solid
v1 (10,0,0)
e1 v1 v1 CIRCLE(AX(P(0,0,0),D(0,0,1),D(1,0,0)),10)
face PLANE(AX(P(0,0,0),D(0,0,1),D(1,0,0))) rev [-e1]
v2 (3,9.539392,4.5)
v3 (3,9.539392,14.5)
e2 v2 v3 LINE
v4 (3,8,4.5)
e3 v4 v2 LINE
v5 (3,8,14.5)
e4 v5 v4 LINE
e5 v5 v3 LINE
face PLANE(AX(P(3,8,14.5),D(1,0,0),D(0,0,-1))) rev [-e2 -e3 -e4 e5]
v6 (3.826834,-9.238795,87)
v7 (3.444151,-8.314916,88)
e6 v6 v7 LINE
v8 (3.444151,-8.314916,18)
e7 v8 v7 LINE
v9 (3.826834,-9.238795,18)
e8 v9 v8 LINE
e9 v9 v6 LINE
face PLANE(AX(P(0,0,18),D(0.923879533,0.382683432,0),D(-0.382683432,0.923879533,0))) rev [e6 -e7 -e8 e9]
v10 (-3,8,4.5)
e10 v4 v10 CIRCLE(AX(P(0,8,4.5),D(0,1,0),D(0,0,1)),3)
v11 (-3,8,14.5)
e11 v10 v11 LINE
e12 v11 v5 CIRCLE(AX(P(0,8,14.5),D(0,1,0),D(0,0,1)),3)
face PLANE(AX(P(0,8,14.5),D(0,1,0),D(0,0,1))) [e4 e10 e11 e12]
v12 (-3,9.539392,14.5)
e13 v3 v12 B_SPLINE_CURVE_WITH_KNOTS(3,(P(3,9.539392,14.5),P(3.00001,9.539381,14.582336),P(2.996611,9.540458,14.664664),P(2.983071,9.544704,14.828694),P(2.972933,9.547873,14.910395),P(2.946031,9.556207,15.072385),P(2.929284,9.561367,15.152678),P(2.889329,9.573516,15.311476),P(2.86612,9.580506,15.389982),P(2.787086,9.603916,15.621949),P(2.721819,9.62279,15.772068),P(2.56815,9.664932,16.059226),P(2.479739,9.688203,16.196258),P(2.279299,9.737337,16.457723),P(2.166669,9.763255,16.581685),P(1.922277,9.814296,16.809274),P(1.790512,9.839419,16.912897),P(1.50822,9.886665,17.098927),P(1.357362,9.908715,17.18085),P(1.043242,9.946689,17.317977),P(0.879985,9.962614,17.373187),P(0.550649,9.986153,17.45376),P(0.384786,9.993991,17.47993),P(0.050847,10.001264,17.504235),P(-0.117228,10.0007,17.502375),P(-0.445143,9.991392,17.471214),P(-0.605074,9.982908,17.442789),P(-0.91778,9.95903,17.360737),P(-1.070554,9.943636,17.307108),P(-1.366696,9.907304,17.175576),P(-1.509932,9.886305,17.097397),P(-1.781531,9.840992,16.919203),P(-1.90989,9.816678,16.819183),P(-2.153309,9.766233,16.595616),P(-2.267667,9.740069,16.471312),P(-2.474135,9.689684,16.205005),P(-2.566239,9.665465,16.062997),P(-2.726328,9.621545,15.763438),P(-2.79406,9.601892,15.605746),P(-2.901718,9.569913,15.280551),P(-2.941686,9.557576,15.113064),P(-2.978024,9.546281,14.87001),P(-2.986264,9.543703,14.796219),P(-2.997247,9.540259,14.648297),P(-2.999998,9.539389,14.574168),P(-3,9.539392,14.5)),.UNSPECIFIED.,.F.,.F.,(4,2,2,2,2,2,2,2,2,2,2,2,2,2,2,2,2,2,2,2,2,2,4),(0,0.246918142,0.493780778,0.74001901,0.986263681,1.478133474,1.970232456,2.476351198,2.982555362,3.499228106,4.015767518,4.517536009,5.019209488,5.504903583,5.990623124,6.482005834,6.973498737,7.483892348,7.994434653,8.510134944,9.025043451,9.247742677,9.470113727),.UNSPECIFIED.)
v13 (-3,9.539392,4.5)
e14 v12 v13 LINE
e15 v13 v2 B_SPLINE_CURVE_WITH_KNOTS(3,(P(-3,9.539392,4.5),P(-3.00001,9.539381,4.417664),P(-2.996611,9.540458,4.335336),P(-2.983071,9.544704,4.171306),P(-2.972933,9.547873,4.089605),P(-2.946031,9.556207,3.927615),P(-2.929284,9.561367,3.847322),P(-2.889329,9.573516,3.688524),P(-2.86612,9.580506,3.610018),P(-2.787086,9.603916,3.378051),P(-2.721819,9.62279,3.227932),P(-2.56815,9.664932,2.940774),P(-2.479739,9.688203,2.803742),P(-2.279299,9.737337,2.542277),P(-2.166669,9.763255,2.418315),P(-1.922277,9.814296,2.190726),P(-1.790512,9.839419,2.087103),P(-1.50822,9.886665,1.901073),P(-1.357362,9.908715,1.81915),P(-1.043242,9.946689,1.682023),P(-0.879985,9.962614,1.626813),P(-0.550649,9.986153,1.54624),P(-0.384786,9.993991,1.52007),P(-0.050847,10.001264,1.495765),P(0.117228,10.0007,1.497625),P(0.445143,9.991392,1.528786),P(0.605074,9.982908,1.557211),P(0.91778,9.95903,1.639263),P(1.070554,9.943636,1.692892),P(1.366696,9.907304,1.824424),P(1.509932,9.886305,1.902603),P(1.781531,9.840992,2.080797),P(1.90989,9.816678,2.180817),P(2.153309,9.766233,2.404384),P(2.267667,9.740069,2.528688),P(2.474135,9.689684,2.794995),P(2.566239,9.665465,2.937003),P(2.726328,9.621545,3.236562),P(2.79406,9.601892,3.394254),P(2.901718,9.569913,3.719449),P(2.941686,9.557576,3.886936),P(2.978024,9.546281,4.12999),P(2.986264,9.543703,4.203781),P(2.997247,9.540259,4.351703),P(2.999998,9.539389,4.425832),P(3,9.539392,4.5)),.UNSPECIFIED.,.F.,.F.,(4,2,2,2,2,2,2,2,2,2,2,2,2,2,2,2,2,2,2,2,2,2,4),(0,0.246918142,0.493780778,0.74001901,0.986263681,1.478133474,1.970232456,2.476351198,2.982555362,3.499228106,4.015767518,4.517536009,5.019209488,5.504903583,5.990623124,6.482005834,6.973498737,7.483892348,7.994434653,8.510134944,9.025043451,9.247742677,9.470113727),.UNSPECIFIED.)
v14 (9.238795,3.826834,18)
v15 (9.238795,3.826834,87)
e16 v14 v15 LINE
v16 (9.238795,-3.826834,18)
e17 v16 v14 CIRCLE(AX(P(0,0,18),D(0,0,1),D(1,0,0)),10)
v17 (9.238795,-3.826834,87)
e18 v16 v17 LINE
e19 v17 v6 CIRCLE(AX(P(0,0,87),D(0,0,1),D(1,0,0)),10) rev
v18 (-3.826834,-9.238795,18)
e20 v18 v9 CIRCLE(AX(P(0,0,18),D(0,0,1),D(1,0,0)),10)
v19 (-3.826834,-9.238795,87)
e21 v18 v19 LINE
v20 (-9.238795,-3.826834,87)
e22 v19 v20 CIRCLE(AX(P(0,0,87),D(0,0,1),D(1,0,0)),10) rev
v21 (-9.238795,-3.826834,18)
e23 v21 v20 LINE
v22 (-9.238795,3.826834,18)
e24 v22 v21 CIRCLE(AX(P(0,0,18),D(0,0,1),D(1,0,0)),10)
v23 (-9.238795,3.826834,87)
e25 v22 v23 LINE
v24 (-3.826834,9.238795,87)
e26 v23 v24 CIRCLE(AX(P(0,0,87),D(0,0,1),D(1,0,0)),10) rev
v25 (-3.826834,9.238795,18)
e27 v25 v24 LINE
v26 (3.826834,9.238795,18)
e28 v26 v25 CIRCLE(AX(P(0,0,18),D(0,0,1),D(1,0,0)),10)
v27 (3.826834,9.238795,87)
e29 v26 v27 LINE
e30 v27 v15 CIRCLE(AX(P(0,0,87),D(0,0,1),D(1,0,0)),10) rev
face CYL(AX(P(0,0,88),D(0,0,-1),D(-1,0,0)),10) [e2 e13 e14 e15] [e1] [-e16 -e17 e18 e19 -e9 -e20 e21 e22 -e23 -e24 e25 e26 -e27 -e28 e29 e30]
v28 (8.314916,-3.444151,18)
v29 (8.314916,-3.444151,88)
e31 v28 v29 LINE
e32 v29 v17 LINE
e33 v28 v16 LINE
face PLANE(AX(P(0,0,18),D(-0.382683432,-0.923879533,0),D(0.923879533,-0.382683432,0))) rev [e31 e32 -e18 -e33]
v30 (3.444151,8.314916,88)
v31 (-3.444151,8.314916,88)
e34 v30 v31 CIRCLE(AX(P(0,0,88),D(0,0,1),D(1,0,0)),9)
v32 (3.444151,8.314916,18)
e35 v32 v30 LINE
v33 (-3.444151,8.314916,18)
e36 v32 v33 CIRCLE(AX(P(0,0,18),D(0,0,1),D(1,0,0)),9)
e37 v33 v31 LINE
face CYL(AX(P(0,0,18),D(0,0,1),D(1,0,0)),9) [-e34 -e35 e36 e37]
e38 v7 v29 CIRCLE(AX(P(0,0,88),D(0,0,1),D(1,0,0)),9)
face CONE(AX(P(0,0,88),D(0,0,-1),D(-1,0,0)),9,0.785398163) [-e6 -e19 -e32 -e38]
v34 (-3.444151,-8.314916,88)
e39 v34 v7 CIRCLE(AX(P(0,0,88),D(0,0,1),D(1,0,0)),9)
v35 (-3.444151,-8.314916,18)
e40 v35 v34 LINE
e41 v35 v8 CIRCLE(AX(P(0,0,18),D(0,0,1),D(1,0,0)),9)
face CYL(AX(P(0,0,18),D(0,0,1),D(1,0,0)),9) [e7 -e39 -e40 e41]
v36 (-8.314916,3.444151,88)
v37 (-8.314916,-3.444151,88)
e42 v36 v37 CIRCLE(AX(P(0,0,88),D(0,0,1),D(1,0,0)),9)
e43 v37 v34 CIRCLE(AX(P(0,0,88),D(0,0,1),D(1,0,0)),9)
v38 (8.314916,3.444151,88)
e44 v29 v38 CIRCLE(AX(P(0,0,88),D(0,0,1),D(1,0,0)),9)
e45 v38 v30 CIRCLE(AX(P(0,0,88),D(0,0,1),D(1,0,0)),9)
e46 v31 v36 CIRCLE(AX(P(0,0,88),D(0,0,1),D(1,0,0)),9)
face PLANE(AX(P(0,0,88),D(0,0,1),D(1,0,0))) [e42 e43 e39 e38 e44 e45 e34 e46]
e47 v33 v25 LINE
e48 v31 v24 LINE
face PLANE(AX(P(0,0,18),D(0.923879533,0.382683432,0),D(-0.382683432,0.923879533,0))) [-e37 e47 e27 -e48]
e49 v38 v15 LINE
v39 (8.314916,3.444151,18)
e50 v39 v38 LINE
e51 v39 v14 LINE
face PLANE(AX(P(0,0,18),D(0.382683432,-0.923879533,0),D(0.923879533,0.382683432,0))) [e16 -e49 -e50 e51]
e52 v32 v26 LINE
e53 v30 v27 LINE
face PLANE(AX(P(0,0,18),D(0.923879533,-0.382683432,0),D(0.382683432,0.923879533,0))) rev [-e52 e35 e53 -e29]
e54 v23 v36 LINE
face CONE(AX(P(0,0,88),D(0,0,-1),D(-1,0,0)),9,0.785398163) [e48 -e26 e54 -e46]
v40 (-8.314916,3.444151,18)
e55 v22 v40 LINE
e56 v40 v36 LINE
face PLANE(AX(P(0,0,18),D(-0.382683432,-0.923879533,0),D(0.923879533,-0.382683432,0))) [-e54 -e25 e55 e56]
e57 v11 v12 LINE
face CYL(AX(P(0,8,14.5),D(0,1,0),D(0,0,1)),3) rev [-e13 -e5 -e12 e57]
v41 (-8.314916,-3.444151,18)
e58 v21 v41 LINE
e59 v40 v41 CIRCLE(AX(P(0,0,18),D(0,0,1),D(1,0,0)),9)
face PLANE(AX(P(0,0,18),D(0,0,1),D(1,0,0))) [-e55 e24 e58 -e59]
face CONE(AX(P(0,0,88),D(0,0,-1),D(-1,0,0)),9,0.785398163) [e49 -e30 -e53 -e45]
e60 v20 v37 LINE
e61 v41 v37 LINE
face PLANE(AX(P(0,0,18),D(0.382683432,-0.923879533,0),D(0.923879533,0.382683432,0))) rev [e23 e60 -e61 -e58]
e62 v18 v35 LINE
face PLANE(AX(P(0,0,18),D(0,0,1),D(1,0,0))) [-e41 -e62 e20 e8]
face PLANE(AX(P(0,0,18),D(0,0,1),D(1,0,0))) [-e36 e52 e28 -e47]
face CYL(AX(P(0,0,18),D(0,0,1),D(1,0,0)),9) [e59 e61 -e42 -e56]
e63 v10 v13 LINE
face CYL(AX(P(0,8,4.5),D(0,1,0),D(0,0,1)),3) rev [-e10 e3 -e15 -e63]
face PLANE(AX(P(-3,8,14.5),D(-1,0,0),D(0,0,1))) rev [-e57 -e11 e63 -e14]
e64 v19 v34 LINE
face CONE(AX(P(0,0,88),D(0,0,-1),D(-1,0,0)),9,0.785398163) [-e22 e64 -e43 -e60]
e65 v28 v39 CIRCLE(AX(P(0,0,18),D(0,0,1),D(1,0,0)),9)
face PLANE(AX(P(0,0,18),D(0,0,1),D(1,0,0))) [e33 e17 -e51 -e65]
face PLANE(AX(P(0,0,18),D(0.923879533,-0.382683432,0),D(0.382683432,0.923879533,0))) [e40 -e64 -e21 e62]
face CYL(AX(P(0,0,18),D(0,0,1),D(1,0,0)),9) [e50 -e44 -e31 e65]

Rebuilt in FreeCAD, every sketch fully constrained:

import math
import FreeCAD as App
import Part
import Sketcher

V = App.Vector
Q = App.Units.Quantity


def edges_at(feature, points):
    """Names of the edges that pass closest to the given points."""
    edges = feature.Shape.Edges
    near = lambda p: min(range(len(edges)), key=lambda i: edges[i].distToShape(Part.Vertex(*p))[0])
    return sorted({f"Edge{near(p) + 1}" for p in points})

doc = App.newDocument("Part")
body = doc.addObject("PartDesign::Body", "Body")

# Sketch on XY plane
sketch1 = doc.addObject("Sketcher::SketchObject", "Sketch")
body.addObject(sketch1)
sketch1.AttachmentSupport = (doc.XY_Plane, [""])
sketch1.MapMode = "FlatFace"
sketch1.addGeometry(Part.Circle(V(0, 0, 0), V(0, 0, 1), 10), False)
sketch1.addConstraint(Sketcher.Constraint("Coincident", 0, 3, -1, 1))
sketch1.addConstraint(Sketcher.Constraint("Diameter", 0, Q("20 mm")))
pad1 = doc.addObject("PartDesign::Pad", "Pad")
body.addObject(pad1)
pad1.Profile = sketch1
pad1.Length = 88
doc.recompute()

chamfer = doc.addObject("PartDesign::Chamfer", "Chamfer")
body.addObject(chamfer)
chamfer.Base = (pad1, edges_at(pad1, [(-10, 0, 88)]))
chamfer.Size = 1

# Sketch on XY plane
sketch2 = doc.addObject("Sketcher::SketchObject", "Sketch001")
body.addObject(sketch2)
sketch2.AttachmentSupport = (doc.XY_Plane, [""])
sketch2.MapMode = "FlatFace"
sketch2.AttachmentOffset = App.Placement(V(0, 0, 18), App.Rotation())
sketch2.addGeometry(Part.ArcOfCircle(Part.Circle(V(0, 0, 0), V(0, 0, 1), 10), math.radians(67), math.radians(113)), False)
sketch2.addGeometry(Part.LineSegment(V(-3.8, 9.2, 0), V(-3.4, 8.3, 0)), False)
sketch2.addGeometry(Part.ArcOfCircle(Part.Circle(V(0, 0, 0), V(0, 0, 1), 9), math.radians(68), math.radians(112)), False)
sketch2.addGeometry(Part.LineSegment(V(3.4, 8.3, 0), V(3.8, 9.2, 0)), False)
sketch2.addGeometry(Part.ArcOfCircle(Part.Circle(V(0, 0, 0), V(0, 0, 1), 10), math.radians(0), math.radians(22)), False)
sketch2.addGeometry(Part.LineSegment(V(9.2, 3.8, 0), V(8.3, 3.4, 0)), False)
sketch2.addGeometry(Part.ArcOfCircle(Part.Circle(V(0, 0, 0), V(0, 0, 1), 9), math.radians(0), math.radians(23)), False)
sketch2.addGeometry(Part.ArcOfCircle(Part.Circle(V(0, 0, 0), V(0, 0, 1), 9), math.radians(-23), math.radians(0)), False)
sketch2.addGeometry(Part.LineSegment(V(8.3, -3.4, 0), V(9.2, -3.8, 0)), False)
sketch2.addGeometry(Part.ArcOfCircle(Part.Circle(V(0, 0, 0), V(0, 0, 1), 10), math.radians(-22), math.radians(0)), False)
sketch2.addGeometry(Part.LineSegment(V(-3.4, -8.3, 0), V(-3.8, -9.2, 0)), False)
sketch2.addGeometry(Part.ArcOfCircle(Part.Circle(V(0, 0, 0), V(0, 0, 1), 10), math.radians(-113), math.radians(-67)), False)
sketch2.addGeometry(Part.LineSegment(V(3.8, -9.2, 0), V(3.4, -8.3, 0)), False)
sketch2.addGeometry(Part.ArcOfCircle(Part.Circle(V(0, 0, 0), V(0, 0, 1), 9), math.radians(-112), math.radians(-68)), False)
sketch2.addGeometry(Part.LineSegment(V(-8.3, 3.4, 0), V(-9.2, 3.8, 0)), False)
sketch2.addGeometry(Part.ArcOfCircle(Part.Circle(V(0, 0, 0), V(0, 0, 1), 10), math.radians(157), math.radians(203)), False)
sketch2.addGeometry(Part.LineSegment(V(-9.2, -3.8, 0), V(-8.3, -3.4, 0)), False)
sketch2.addGeometry(Part.ArcOfCircle(Part.Circle(V(0, 0, 0), V(0, 0, 1), 9), math.radians(158), math.radians(202)), False)
sketch2.addConstraint(Sketcher.Constraint("Coincident", 0, 2, 1, 1))
sketch2.addConstraint(Sketcher.Constraint("Coincident", 1, 2, 2, 2))
sketch2.addConstraint(Sketcher.Constraint("Coincident", 2, 1, 3, 1))
sketch2.addConstraint(Sketcher.Constraint("Coincident", 3, 2, 0, 1))
sketch2.addConstraint(Sketcher.Constraint("Coincident", 4, 2, 5, 1))
sketch2.addConstraint(Sketcher.Constraint("Coincident", 5, 2, 6, 2))
sketch2.addConstraint(Sketcher.Constraint("Tangent", 6, 1, 7, 2))
sketch2.addConstraint(Sketcher.Constraint("Coincident", 7, 1, 8, 1))
sketch2.addConstraint(Sketcher.Constraint("Coincident", 8, 2, 9, 1))
sketch2.addConstraint(Sketcher.Constraint("Tangent", 9, 2, 4, 1))
sketch2.addConstraint(Sketcher.Constraint("Coincident", 10, 2, 11, 1))
sketch2.addConstraint(Sketcher.Constraint("Coincident", 11, 2, 12, 1))
sketch2.addConstraint(Sketcher.Constraint("Coincident", 12, 2, 13, 2))
sketch2.addConstraint(Sketcher.Constraint("Coincident", 13, 1, 10, 1))
sketch2.addConstraint(Sketcher.Constraint("Coincident", 14, 2, 15, 1))
sketch2.addConstraint(Sketcher.Constraint("Coincident", 15, 2, 16, 1))
sketch2.addConstraint(Sketcher.Constraint("Coincident", 16, 2, 17, 2))
sketch2.addConstraint(Sketcher.Constraint("Coincident", 17, 1, 14, 1))
sketch2.addConstraint(Sketcher.Constraint("Coincident", 0, 3, -1, 1))
sketch2.addConstraint(Sketcher.Constraint("Coincident", 2, 3, -1, 1))
sketch2.addConstraint(Sketcher.Constraint("Coincident", 4, 3, -1, 1))
sketch2.addConstraint(Sketcher.Constraint("Coincident", 6, 3, -1, 1))
sketch2.addConstraint(Sketcher.Constraint("Coincident", 11, 3, -1, 1))
sketch2.addConstraint(Sketcher.Constraint("Coincident", 13, 3, -1, 1))
sketch2.addConstraint(Sketcher.Constraint("Coincident", 15, 3, -1, 1))
sketch2.addConstraint(Sketcher.Constraint("Coincident", 17, 3, -1, 1))
sketch2.addConstraint(Sketcher.Constraint("Equal", 0, 4))
sketch2.addConstraint(Sketcher.Constraint("Equal", 2, 6))
sketch2.addConstraint(Sketcher.Constraint("Equal", 6, 7))
sketch2.addConstraint(Sketcher.Constraint("Equal", 4, 9))
sketch2.addConstraint(Sketcher.Constraint("Equal", 9, 11))
sketch2.addConstraint(Sketcher.Constraint("Equal", 7, 13))
sketch2.addConstraint(Sketcher.Constraint("Equal", 11, 15))
sketch2.addConstraint(Sketcher.Constraint("Equal", 13, 17))
sketch2.addConstraint(Sketcher.Constraint("PointOnObject", 6, 1, -1))
sketch2.addConstraint(Sketcher.Constraint("PointOnObject", 9, 2, -1))
sketch2.addConstraint(Sketcher.Constraint("Perpendicular", 1, 5))
sketch2.addConstraint(Sketcher.Constraint("Perpendicular", 3, 8))
sketch2.addConstraint(Sketcher.Constraint("Perpendicular", 8, 10))
sketch2.addConstraint(Sketcher.Constraint("Perpendicular", 5, 12))
sketch2.addConstraint(Sketcher.Constraint("Perpendicular", 10, 14))
sketch2.addConstraint(Sketcher.Constraint("Perpendicular", 12, 16))
sketch2.addConstraint(Sketcher.Constraint("Horizontal", 1, 2, 2, 1))
sketch2.addConstraint(Sketcher.Constraint("Horizontal", 0, 2, 3, 2))
sketch2.addConstraint(Sketcher.Constraint("Horizontal", 10, 2, 11, 2))
sketch2.addConstraint(Sketcher.Constraint("Horizontal", 4, 2, 14, 2))
sketch2.addConstraint(Sketcher.Constraint("Horizontal", 8, 2, 15, 2))
sketch2.addConstraint(Sketcher.Constraint("Vertical", 5, 2, 7, 1))
sketch2.addConstraint(Sketcher.Constraint("Vertical", 0, 2, 10, 2))
sketch2.addConstraint(Sketcher.Constraint("Radius", 0, Q("10 mm")))
sketch2.addConstraint(Sketcher.Constraint("Radius", 2, Q("9 mm")))
sketch2.addConstraint(Sketcher.Constraint("Angle", 1, Q("-67.5 deg")))
sketch2.addConstraint(Sketcher.Constraint("DistanceX", 1, 2, 2, 1, Q("6.888302 mm")))
sketch2.addConstraint(Sketcher.Constraint("DistanceY", 7, 1, 5, 2, Q("6.888302 mm")))
pocket1 = doc.addObject("PartDesign::Pocket", "Pocket")
body.addObject(pocket1)
pocket1.Profile = sketch2
pocket1.Length = 70
pocket1.Reversed = True

# Sketch on XZ plane
sketch3 = doc.addObject("Sketcher::SketchObject", "Sketch002")
body.addObject(sketch3)
sketch3.AttachmentSupport = (doc.XZ_Plane, [""])
sketch3.MapMode = "FlatFace"
sketch3.AttachmentOffset = App.Placement(V(0, 0, -10), App.Rotation())
sketch3.addGeometry(Part.LineSegment(V(-3, 4.5, 0), V(-3, 14.5, 0)), False)
sketch3.addGeometry(Part.ArcOfCircle(Part.Circle(V(0, 14.5, 0), V(0, 0, 1), 3), math.radians(0), math.radians(180)), False)
sketch3.addGeometry(Part.LineSegment(V(3, 14.5, 0), V(3, 4.5, 0)), False)
sketch3.addGeometry(Part.ArcOfCircle(Part.Circle(V(0, 4.5, 0), V(0, 0, 1), 3), math.radians(180), math.radians(360)), False)
sketch3.addConstraint(Sketcher.Constraint("Tangent", 0, 2, 1, 2))
sketch3.addConstraint(Sketcher.Constraint("Tangent", 1, 1, 2, 1))
sketch3.addConstraint(Sketcher.Constraint("Tangent", 2, 2, 3, 2))
sketch3.addConstraint(Sketcher.Constraint("Tangent", 3, 1, 0, 1))
sketch3.addConstraint(Sketcher.Constraint("Vertical", 0))
sketch3.addConstraint(Sketcher.Constraint("Vertical", 2))
sketch3.addConstraint(Sketcher.Constraint("PointOnObject", 1, 3, -2))
sketch3.addConstraint(Sketcher.Constraint("Radius", 1, Q("3 mm")))
sketch3.addConstraint(Sketcher.Constraint("DistanceY", 0, 1, 0, 2, Q("10 mm")))
sketch3.addConstraint(Sketcher.Constraint("DistanceY", -1, 1, 1, 3, Q("14.5 mm")))
pocket2 = doc.addObject("PartDesign::Pocket", "Pocket001")
body.addObject(pocket2)
pocket2.Profile = sketch3
pocket2.Length = 2
pocket2.Reversed = True

doc.recompute()
